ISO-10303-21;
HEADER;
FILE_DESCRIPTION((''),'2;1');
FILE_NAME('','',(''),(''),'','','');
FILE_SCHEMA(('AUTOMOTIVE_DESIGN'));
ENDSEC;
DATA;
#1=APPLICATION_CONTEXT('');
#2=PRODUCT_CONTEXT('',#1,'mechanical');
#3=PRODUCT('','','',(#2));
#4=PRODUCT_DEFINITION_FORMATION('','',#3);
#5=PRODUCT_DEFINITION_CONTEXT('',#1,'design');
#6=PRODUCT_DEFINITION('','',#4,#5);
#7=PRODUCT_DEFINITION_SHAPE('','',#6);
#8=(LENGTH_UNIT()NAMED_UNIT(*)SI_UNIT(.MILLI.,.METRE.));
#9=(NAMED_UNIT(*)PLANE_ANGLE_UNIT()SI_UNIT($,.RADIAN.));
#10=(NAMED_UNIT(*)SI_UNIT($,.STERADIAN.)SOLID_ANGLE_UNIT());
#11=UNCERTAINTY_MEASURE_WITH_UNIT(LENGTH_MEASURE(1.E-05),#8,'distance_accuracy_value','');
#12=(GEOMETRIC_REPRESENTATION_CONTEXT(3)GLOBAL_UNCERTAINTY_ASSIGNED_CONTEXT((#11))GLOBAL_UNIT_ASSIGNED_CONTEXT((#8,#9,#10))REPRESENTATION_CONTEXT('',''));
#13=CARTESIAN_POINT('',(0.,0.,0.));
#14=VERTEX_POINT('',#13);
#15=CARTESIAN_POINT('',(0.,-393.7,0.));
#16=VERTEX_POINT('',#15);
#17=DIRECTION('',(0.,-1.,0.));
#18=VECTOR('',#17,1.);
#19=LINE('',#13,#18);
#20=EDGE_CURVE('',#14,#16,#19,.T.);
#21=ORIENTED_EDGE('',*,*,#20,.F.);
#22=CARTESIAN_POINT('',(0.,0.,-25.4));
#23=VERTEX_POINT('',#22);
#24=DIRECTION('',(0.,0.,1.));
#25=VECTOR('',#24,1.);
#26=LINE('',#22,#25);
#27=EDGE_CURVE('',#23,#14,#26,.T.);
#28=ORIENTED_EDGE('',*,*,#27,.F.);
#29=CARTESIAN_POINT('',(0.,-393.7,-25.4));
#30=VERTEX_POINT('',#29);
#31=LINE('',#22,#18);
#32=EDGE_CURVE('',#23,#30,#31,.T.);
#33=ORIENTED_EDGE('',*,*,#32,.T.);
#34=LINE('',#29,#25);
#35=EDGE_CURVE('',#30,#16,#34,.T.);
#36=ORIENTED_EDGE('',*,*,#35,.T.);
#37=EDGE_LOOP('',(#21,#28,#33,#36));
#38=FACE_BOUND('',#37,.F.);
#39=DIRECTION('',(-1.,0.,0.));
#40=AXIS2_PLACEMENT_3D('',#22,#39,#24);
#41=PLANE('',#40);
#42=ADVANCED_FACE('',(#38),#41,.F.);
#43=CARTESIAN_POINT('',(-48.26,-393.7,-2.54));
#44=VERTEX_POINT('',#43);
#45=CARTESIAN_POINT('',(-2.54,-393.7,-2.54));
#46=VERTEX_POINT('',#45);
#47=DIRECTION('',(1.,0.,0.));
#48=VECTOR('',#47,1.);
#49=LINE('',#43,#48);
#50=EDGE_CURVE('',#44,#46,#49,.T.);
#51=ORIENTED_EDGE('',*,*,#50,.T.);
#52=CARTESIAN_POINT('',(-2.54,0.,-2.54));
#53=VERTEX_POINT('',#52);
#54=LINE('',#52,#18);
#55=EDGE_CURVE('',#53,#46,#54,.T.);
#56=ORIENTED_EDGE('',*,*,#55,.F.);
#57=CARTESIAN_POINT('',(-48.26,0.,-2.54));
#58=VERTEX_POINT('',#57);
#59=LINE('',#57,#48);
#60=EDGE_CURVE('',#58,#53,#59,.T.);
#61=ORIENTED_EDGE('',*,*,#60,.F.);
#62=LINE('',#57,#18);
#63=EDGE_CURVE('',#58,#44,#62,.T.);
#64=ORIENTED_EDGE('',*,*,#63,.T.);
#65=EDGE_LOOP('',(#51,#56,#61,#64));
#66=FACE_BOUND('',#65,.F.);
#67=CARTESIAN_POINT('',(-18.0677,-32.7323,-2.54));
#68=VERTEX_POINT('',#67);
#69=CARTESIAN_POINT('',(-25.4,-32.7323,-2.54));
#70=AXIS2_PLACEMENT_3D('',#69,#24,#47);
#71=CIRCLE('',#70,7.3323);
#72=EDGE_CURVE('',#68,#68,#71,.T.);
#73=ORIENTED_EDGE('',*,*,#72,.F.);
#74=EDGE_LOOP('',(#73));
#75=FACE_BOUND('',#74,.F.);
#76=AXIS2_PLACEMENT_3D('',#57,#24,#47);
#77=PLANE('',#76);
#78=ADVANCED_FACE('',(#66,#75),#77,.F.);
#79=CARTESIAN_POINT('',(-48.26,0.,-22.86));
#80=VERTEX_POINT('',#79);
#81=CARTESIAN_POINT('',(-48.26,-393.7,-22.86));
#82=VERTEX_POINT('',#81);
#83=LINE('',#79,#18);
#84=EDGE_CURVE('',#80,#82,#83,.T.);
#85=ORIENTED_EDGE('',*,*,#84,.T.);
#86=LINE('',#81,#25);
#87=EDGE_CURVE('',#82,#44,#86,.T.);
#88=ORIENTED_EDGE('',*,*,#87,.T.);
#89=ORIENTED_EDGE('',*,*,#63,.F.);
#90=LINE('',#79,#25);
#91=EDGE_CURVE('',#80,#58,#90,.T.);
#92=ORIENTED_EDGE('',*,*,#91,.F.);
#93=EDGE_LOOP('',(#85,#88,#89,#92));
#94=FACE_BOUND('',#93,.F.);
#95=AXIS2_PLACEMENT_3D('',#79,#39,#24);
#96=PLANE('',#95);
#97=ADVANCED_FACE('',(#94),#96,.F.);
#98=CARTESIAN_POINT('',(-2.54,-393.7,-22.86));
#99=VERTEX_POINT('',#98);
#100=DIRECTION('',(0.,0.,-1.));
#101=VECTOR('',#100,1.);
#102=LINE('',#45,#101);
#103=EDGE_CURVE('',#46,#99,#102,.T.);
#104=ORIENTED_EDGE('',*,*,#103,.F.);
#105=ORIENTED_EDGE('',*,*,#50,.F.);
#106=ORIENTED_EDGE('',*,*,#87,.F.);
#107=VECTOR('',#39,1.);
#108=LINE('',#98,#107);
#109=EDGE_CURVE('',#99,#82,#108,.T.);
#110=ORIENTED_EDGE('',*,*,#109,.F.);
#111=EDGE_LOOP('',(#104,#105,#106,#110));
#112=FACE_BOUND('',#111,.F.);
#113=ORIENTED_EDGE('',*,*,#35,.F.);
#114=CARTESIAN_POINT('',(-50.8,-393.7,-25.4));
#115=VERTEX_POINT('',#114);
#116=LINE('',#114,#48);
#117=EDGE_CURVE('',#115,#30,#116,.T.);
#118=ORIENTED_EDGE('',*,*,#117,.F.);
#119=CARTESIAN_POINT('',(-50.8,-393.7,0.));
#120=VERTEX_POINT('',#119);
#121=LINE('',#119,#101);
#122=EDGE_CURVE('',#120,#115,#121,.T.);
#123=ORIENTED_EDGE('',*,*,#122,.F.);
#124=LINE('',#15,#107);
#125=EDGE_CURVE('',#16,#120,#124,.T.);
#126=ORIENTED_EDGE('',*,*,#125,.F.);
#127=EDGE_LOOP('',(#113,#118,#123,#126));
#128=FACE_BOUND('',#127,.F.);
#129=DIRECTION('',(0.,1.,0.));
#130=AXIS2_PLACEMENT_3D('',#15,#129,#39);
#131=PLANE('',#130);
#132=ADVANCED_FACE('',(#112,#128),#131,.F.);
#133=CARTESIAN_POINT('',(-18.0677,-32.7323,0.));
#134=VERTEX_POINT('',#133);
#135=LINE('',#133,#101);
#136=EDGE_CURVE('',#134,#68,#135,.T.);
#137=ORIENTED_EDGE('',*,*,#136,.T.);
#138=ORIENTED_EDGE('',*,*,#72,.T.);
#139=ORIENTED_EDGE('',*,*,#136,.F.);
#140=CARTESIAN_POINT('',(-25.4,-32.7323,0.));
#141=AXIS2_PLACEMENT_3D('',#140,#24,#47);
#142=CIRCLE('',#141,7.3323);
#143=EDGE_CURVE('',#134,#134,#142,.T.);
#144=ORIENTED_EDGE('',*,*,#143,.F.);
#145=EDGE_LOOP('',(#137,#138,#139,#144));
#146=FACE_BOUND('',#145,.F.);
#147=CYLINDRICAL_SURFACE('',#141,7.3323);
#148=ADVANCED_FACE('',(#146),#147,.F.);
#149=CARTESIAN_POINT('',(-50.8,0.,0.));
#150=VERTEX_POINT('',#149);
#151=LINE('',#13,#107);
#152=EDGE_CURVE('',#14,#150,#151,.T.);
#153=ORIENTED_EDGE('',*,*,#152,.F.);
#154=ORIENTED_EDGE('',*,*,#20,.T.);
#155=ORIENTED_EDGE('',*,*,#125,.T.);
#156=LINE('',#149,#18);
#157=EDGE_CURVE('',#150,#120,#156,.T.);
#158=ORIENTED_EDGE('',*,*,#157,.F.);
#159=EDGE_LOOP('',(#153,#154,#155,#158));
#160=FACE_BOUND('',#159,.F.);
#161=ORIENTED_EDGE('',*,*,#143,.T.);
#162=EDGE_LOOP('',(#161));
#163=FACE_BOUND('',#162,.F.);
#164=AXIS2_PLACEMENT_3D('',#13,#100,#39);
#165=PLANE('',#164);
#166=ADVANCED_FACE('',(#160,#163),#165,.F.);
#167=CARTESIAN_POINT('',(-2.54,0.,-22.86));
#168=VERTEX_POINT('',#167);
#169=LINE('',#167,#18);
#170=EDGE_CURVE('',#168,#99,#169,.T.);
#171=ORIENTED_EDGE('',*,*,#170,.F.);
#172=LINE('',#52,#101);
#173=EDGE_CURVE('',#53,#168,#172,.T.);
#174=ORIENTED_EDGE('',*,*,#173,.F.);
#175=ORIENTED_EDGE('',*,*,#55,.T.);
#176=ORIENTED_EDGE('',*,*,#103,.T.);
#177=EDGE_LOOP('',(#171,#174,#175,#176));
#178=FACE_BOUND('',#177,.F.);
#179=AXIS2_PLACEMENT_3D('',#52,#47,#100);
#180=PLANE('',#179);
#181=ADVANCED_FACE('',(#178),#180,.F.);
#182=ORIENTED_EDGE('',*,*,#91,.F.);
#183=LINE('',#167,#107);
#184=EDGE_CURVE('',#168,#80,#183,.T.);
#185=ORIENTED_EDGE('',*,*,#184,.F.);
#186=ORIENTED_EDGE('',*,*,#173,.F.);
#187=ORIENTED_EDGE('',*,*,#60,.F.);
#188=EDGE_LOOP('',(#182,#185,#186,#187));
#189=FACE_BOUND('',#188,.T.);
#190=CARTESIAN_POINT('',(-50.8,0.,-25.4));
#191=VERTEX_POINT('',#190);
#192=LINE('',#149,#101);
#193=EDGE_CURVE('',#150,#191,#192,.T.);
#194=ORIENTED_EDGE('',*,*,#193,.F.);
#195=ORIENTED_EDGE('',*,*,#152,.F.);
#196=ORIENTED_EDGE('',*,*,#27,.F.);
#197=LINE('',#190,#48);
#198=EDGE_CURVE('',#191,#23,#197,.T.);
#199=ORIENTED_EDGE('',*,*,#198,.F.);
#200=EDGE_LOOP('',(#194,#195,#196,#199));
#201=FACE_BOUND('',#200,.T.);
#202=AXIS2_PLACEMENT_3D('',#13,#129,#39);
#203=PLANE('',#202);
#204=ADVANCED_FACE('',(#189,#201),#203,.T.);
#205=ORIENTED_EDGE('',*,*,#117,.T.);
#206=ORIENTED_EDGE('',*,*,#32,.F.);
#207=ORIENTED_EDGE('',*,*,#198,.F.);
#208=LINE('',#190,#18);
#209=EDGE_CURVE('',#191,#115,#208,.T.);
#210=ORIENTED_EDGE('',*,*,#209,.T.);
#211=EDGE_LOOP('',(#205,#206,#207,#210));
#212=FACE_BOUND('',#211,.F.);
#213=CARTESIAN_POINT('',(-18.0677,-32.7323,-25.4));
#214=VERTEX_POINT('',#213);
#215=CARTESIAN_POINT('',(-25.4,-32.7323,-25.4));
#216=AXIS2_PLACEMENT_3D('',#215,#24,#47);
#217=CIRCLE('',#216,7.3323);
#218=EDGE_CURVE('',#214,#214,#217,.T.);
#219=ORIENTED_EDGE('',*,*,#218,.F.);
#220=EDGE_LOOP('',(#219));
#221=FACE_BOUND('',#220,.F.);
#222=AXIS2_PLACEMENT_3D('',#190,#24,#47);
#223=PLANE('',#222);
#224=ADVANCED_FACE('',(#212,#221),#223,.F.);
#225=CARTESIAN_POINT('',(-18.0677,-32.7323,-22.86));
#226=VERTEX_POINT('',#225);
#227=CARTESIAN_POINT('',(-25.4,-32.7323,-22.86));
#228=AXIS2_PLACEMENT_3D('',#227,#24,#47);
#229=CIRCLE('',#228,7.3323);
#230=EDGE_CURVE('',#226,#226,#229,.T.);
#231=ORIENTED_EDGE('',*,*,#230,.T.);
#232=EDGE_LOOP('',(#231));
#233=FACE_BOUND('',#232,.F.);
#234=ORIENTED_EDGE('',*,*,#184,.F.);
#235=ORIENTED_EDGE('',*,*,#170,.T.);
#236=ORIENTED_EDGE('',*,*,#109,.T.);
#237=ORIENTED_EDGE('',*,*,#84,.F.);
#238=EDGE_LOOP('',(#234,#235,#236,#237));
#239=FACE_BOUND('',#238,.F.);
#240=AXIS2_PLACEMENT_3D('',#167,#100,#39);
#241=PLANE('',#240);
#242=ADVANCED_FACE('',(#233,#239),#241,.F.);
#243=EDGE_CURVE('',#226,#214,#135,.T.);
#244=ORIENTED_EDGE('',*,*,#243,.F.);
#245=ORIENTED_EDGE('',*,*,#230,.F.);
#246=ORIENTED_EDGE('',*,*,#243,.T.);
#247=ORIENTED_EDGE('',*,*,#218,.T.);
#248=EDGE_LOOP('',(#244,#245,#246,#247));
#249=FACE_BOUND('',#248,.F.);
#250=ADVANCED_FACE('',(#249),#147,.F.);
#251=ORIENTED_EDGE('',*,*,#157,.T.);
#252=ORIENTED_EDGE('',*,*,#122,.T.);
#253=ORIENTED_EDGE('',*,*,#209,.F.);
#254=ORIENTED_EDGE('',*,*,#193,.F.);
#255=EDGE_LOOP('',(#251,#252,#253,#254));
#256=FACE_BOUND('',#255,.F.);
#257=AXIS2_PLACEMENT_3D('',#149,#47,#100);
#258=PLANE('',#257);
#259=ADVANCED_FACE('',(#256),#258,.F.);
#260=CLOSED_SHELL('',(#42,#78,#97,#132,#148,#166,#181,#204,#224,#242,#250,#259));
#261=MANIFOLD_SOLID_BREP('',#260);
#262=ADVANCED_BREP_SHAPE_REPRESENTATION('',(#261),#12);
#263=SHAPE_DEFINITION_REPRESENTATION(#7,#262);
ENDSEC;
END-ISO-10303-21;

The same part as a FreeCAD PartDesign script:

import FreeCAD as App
import Part
import Sketcher

V = App.Vector
Q = App.Units.Quantity

doc = App.newDocument("Part")
params = doc.addObject("Spreadsheet::Sheet", "Params")
for row, (alias, value) in enumerate([
    ("sketch1_width", "2 in"),
    ("sketch1_height", "1 in"),
    ("pad1_length", "15.5 in"),
], start=1):
    params.set(f"A{row}", alias)
    params.set(f"B{row}", "=" + value)
    params.setAlias(f"B{row}", alias)

body = doc.addObject("PartDesign::Body", "Body")

# Sketch on XZ plane
sketch1 = body.newObject("Sketcher::SketchObject", "Sketch")
sketch1.AttachmentSupport = (doc.getObject("XZ_Plane"), [""])
sketch1.MapMode = "FlatFace"
sketch1.addGeometry([
    Part.LineSegment(V(-50.8, 0, 0), V(0, 0, 0)),  # 0
    Part.LineSegment(V(0, 0, 0), V(0, -25.4, 0)),  # 1
    Part.LineSegment(V(0, -25.4, 0), V(-50.8, -25.4, 0)),  # 2
    Part.LineSegment(V(-50.8, -25.4, 0), V(-50.8, 0, 0)),  # 3
    Part.LineSegment(V(-48.26, -22.86, 0), V(-2.54, -22.86, 0)),  # 4
    Part.LineSegment(V(-2.54, -22.86, 0), V(-2.54, -2.54, 0)),  # 5
    Part.LineSegment(V(-2.54, -2.54, 0), V(-48.26, -2.54, 0)),  # 6
    Part.LineSegment(V(-48.26, -2.54, 0), V(-48.26, -22.86, 0)),  # 7
], False)
sketch1.addConstraint([
    Sketcher.Constraint("Coincident", 0, 2, 1, 1),
    Sketcher.Constraint("Coincident", 1, 2, 2, 1),
    Sketcher.Constraint("Coincident", 2, 2, 3, 1),
    Sketcher.Constraint("Coincident", 3, 2, 0, 1),
    Sketcher.Constraint("Coincident", 4, 2, 5, 1),
    Sketcher.Constraint("Coincident", 5, 2, 6, 1),
    Sketcher.Constraint("Coincident", 6, 2, 7, 1),
    Sketcher.Constraint("Coincident", 7, 2, 4, 1),
    Sketcher.Constraint("Horizontal", 0),
    Sketcher.Constraint("Vertical", 1),
    Sketcher.Constraint("Horizontal", 2),
    Sketcher.Constraint("Vertical", 3),
    Sketcher.Constraint("Horizontal", 4),
    Sketcher.Constraint("Vertical", 5),
    Sketcher.Constraint("Horizontal", 6),
    Sketcher.Constraint("Vertical", 7),
    Sketcher.Constraint("Coincident", 0, 2, -1, 1),
    Sketcher.Constraint("DistanceX", 0, 1, 0, 2, Q("2 in")),
    Sketcher.Constraint("DistanceY", 1, 2, 1, 1, Q("1 in")),
    Sketcher.Constraint("DistanceX", 4, 2, -1, 1, Q("0.1 in")),
    Sketcher.Constraint("DistanceY", 5, 2, -1, 1, Q("0.1 in")),
    Sketcher.Constraint("DistanceY", 1, 2, 4, 2, Q("0.1 in")),
    Sketcher.Constraint("DistanceX", 3, 2, 6, 2, Q("0.1 in")),
])
sketch1.setExpression("Constraints[17]", "Params.sketch1_width")
sketch1.setExpression("Constraints[18]", "Params.sketch1_height")
pad1 = body.newObject("PartDesign::Pad", "Pad")
pad1.Profile = sketch1
pad1.setExpression("Length", "Params.pad1_length")

# Sketch on XY plane
sketch2 = body.newObject("Sketcher::SketchObject", "Sketch001")
sketch2.AttachmentSupport = (doc.getObject("XY_Plane"), [""])
sketch2.MapMode = "FlatFace"
sketch2.addGeometry(Part.Circle(V(-25.4, -32.7323, 0), V(0, 0, 1), 7.3323), False)
sketch2.addConstraint([
    Sketcher.Constraint("DistanceX", 0, 3, -1, 1, Q("1 in")),
    Sketcher.Constraint("Diameter", 0, 14.6646),
    Sketcher.Constraint("DistanceY", 0, 3, -1, 1, 32.7323),
])
pocket1 = body.newObject("PartDesign::Pocket", "Pocket")
pocket1.Profile = sketch2
pocket1.Type = "ThroughAll"

doc.recompute()
